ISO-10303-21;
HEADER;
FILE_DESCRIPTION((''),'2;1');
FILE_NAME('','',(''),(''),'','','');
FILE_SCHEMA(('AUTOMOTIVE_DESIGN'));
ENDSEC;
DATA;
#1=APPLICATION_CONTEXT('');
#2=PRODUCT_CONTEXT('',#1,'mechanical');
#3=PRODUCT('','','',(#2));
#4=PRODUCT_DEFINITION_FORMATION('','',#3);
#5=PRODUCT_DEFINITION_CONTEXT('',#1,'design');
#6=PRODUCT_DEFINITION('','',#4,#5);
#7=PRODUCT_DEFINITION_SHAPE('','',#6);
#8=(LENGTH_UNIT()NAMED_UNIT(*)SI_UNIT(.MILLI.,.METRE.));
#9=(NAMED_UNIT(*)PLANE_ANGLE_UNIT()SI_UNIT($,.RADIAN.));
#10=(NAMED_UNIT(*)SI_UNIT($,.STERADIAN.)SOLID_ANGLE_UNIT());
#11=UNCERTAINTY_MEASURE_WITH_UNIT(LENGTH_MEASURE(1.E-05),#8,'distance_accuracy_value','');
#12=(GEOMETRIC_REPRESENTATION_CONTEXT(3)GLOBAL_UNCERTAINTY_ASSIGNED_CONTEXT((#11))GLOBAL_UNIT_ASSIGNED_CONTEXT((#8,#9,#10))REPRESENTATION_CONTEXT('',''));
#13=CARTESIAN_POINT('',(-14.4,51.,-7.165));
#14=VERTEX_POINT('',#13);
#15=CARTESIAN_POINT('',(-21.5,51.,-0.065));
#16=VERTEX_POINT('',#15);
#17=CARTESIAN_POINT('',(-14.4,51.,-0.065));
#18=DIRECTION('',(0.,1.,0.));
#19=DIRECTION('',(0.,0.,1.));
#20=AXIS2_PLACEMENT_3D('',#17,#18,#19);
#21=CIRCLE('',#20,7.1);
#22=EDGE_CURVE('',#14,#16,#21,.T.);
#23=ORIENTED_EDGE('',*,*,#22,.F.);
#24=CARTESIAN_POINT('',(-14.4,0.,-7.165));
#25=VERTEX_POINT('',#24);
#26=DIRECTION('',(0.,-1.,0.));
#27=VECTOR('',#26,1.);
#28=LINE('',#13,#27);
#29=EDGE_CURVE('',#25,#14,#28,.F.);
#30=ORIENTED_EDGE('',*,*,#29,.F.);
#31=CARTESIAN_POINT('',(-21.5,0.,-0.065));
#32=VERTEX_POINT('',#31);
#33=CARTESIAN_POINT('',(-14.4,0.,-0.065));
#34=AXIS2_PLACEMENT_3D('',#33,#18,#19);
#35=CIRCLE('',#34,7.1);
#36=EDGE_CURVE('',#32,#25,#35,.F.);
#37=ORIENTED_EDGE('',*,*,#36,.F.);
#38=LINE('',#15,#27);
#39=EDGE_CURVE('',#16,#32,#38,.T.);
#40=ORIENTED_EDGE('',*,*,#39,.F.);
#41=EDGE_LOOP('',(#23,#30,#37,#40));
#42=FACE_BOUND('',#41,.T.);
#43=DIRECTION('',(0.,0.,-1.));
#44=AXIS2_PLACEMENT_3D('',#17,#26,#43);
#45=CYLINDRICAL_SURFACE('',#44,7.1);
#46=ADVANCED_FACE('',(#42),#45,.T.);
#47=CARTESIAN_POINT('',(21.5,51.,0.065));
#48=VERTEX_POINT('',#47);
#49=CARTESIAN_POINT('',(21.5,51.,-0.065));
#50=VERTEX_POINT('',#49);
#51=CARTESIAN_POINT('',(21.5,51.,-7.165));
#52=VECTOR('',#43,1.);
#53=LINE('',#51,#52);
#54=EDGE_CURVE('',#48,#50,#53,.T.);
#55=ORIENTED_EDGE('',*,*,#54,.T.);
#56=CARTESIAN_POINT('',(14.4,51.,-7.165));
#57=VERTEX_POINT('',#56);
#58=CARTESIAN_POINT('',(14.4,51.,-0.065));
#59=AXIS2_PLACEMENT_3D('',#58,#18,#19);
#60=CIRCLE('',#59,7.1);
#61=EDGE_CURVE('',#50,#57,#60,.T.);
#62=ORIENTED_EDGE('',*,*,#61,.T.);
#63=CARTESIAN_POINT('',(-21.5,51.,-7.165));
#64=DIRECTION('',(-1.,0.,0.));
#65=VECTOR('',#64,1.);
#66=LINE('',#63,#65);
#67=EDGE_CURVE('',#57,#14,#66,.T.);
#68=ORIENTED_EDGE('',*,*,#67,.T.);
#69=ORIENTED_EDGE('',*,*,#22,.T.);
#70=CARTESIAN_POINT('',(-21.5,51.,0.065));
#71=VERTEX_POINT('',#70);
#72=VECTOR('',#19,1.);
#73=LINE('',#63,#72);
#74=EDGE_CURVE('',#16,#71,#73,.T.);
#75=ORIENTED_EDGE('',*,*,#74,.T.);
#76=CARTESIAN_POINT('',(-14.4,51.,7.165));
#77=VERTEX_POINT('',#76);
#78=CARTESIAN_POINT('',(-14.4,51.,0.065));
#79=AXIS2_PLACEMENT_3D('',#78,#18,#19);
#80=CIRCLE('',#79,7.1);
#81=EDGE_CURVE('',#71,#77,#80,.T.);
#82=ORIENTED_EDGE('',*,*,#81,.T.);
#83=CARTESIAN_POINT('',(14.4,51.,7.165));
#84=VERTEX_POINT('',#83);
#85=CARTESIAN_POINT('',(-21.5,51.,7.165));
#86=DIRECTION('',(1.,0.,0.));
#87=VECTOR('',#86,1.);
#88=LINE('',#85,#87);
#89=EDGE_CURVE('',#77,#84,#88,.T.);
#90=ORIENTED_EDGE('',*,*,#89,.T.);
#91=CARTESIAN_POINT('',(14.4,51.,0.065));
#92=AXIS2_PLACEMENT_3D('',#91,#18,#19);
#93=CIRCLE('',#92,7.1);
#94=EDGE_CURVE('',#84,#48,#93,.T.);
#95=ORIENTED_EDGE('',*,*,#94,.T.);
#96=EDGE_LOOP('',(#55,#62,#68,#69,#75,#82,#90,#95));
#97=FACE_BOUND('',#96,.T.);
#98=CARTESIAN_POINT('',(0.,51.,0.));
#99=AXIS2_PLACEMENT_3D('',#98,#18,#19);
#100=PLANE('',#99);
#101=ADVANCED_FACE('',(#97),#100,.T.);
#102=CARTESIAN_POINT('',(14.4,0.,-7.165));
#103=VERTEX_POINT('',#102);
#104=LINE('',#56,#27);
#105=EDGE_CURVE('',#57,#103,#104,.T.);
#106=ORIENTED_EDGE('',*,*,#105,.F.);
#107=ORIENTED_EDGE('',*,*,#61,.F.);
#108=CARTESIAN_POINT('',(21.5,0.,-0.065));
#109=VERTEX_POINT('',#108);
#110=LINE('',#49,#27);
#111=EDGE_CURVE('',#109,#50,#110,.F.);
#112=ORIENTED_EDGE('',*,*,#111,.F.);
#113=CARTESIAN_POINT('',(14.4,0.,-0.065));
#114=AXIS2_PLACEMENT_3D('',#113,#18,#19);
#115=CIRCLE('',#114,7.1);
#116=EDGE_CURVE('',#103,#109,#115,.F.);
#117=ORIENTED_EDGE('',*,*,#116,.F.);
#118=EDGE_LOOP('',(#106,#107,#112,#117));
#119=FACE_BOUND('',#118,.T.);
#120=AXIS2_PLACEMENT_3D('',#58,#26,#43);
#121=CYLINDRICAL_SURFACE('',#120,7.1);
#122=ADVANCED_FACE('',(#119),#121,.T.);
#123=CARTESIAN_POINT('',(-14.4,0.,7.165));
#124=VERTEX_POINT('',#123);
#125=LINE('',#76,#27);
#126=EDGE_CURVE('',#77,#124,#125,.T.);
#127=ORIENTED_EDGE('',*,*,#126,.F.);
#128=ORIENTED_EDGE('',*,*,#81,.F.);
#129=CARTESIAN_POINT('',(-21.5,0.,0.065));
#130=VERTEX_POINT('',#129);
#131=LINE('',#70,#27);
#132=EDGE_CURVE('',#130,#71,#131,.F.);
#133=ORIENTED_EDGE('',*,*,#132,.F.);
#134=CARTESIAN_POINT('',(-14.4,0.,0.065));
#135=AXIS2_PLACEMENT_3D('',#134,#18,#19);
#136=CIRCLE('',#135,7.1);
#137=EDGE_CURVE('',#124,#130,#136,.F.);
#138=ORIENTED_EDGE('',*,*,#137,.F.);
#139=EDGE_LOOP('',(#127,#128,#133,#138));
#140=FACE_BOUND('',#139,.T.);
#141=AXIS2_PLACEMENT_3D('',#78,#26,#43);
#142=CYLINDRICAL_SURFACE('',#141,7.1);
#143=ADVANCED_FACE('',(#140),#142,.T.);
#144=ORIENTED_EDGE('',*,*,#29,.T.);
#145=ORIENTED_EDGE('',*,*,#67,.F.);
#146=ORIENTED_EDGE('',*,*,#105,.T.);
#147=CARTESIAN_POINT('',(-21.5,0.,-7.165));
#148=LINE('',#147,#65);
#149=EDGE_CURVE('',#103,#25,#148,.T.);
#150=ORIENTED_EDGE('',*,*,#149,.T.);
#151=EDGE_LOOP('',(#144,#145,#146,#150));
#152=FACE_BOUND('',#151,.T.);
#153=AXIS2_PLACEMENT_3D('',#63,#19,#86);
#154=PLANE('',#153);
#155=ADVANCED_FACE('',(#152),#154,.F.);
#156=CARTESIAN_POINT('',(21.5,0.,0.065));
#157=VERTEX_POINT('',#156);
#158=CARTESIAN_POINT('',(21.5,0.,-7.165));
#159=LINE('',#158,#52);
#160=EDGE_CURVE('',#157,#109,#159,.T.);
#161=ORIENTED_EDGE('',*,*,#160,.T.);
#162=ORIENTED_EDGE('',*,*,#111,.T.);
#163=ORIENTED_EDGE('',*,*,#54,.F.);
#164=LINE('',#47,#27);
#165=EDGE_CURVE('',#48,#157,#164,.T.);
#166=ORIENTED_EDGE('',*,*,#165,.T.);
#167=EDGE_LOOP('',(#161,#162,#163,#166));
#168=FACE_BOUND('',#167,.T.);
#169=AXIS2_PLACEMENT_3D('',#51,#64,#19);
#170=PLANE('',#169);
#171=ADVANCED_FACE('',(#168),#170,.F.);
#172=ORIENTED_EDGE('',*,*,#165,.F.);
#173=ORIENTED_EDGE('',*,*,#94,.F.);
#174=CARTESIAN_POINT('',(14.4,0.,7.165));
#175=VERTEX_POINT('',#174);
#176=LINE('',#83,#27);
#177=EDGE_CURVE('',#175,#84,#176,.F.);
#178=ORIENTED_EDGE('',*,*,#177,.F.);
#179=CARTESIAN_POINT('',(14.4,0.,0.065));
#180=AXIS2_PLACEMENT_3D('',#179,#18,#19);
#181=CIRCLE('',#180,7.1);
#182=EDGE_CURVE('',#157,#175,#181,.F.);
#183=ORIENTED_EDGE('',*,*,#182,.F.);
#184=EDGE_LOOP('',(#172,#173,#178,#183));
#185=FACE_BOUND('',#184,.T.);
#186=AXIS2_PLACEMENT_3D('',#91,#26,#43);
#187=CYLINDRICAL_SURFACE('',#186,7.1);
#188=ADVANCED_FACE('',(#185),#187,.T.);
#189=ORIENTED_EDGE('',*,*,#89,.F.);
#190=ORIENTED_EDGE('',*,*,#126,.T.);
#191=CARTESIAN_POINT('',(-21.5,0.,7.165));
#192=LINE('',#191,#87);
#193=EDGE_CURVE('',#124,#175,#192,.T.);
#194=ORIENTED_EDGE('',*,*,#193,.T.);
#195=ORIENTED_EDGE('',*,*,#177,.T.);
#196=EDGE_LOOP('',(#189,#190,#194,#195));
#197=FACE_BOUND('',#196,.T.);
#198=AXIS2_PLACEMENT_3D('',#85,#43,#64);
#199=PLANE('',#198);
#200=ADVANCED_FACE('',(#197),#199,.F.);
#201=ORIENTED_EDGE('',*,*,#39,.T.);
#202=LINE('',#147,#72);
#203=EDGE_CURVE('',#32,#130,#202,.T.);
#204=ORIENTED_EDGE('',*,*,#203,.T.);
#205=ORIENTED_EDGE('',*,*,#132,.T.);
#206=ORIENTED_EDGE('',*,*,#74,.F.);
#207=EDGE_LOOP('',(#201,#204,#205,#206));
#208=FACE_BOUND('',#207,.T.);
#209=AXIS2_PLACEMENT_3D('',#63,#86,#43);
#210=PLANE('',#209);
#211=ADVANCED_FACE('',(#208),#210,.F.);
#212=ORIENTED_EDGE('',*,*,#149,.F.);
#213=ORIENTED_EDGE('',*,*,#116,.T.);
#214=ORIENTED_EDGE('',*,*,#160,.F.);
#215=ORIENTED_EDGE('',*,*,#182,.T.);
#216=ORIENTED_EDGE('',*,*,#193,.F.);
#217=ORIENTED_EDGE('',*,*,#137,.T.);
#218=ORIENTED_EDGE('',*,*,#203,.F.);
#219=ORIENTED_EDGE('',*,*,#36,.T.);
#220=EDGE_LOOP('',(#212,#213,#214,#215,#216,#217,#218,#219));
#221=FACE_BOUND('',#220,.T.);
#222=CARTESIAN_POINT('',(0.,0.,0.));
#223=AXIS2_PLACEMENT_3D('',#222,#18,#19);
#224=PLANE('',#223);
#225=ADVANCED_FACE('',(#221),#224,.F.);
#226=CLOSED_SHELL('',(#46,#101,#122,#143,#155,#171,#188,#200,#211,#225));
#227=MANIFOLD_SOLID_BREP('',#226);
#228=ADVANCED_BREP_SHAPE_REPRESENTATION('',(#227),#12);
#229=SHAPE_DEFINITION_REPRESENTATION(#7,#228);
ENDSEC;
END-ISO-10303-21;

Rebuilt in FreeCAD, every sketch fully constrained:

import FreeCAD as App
import Part
import Sketcher
from FreeCAD import Vector


def edges_at(feature, points):
    """Names of the edges that pass closest to the given points."""
    edges = feature.Shape.Edges
    near = lambda p: min(range(len(edges)), key=lambda i: edges[i].distToShape(Part.Vertex(*p))[0])
    return sorted({f"Edge{near(p) + 1}" for p in points})


def add_polygon(sketch, points):
    """Adds a closed chain of lines whose ends are joined by coincident constraints."""
    first, n = sketch.GeometryCount, len(points)
    for a, b in zip(points, points[1:] + points[:1]):
        sketch.addGeometry(Part.LineSegment(App.Vector(*a, 0), App.Vector(*b, 0)), False)
    for i in range(n):
        sketch.addConstraint(Sketcher.Constraint("Coincident", first + i, 2, first + (i + 1) % n, 1))

doc = App.newDocument("Part")
body = doc.addObject("PartDesign::Body", "Body")

sketch1 = doc.addObject("Sketcher::SketchObject", "Sketch")
body.addObject(sketch1)
sketch1.AttachmentSupport = (doc.XZ_Plane, [""])
sketch1.MapMode = "FlatFace"
add_polygon(sketch1, [(-21.5, -7.165), (-21.5, 7.165), (21.5, 7.165), (21.5, -7.165)])
sketch1.addConstraint(Sketcher.Constraint("Vertical", 0))
sketch1.addConstraint(Sketcher.Constraint("Horizontal", 1))
sketch1.addConstraint(Sketcher.Constraint("Vertical", 2))
sketch1.addConstraint(Sketcher.Constraint("Horizontal", 3))
sketch1.addConstraint(Sketcher.Constraint("Symmetric", 0, 2, 2, 2, -1, 1))
sketch1.addConstraint(Sketcher.Constraint("DistanceX", 1, 1, 1, 2, 43.0))
sketch1.addConstraint(Sketcher.Constraint("DistanceY", 0, 1, 0, 2, 14.33))
pad1 = doc.addObject("PartDesign::Pad", "Pad")
body.addObject(pad1)
pad1.Profile = sketch1
pad1.Length = 51
pad1.Reversed = True
doc.recompute()

fillet = doc.addObject("PartDesign::Fillet", "Fillet")
body.addObject(fillet)
fillet.Base = (pad1, edges_at(pad1, [
    (21.5, 25.5, 7.165),
    (-21.5, 25.5, 7.165),
    (-21.5, 25.5, -7.165),
    (21.5, 25.5, -7.165),
]))
fillet.Radius = 7.1

doc.recompute()
